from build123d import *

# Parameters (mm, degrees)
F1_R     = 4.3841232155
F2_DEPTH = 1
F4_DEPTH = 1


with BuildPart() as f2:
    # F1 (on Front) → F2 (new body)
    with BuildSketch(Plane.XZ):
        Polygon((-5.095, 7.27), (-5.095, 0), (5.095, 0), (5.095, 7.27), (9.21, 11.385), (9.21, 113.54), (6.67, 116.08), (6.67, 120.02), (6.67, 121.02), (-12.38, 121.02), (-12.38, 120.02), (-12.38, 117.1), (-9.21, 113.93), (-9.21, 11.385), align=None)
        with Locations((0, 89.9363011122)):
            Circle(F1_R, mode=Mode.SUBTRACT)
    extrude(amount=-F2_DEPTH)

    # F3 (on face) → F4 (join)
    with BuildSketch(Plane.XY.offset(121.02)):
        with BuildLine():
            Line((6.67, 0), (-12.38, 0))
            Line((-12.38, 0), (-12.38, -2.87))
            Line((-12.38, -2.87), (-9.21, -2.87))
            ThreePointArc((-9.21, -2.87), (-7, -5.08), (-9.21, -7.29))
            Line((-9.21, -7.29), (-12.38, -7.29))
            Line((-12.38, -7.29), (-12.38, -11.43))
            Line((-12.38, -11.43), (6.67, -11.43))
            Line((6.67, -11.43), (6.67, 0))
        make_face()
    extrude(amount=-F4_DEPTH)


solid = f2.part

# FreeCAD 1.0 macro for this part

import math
import FreeCAD as App
import Part
import Sketcher

V = App.Vector
Q = App.Units.Quantity

doc = App.newDocument("Part")
body = doc.addObject("PartDesign::Body", "Body")

# Sketch on XZ plane
sketch1 = body.newObject("Sketcher::SketchObject", "Sketch")
sketch1.AttachmentSupport = (doc.getObject("XZ_Plane"), [""])
sketch1.MapMode = "FlatFace"
sketch1.addGeometry([
    Part.LineSegment(V(-5.095, 7.27, 0), V(-5.095, 0, 0)),  # 0
    Part.LineSegment(V(-5.095, 0, 0), V(5.095, 0, 0)),  # 1
    Part.LineSegment(V(5.095, 0, 0), V(5.095, 7.27, 0)),  # 2
    Part.LineSegment(V(5.095, 7.27, 0), V(9.21, 11.385, 0)),  # 3
    Part.LineSegment(V(9.21, 11.385, 0), V(9.21, 113.54, 0)),  # 4
    Part.LineSegment(V(9.21, 113.54, 0), V(6.67, 116.08, 0)),  # 5
    Part.LineSegment(V(6.67, 116.08, 0), V(6.67, 121.02, 0)),  # 6
    Part.LineSegment(V(6.67, 121.02, 0), V(-12.38, 121.02, 0)),  # 7
    Part.LineSegment(V(-12.38, 121.02, 0), V(-12.38, 117.1, 0)),  # 8
    Part.LineSegment(V(-12.38, 117.1, 0), V(-9.21, 113.93, 0)),  # 9
    Part.LineSegment(V(-9.21, 113.93, 0), V(-9.21, 11.385, 0)),  # 10
    Part.LineSegment(V(-9.21, 11.385, 0), V(-5.095, 7.27, 0)),  # 11
    Part.Circle(V(0, 89.936301, 0), V(0, 0, 1), 4.384123),  # 12
], False)
sketch1.addConstraint([
    Sketcher.Constraint("Coincident", 0, 2, 1, 1),
    Sketcher.Constraint("Coincident", 1, 2, 2, 1),
    Sketcher.Constraint("Coincident", 2, 2, 3, 1),
    Sketcher.Constraint("Coincident", 3, 2, 4, 1),
    Sketcher.Constraint("Coincident", 4, 2, 5, 1),
    Sketcher.Constraint("Coincident", 5, 2, 6, 1),
    Sketcher.Constraint("Coincident", 6, 2, 7, 1),
    Sketcher.Constraint("Coincident", 7, 2, 8, 1),
    Sketcher.Constraint("Coincident", 8, 2, 9, 1),
    Sketcher.Constraint("Coincident", 9, 2, 10, 1),
    Sketcher.Constraint("Coincident", 10, 2, 11, 1),
    Sketcher.Constraint("Coincident", 11, 2, 0, 1),
    Sketcher.Constraint("Vertical", 0),
    Sketcher.Constraint("Horizontal", 1),
    Sketcher.Constraint("Vertical", 2),
    Sketcher.Constraint("Vertical", 4),
    Sketcher.Constraint("Vertical", 6),
    Sketcher.Constraint("Horizontal", 7),
    Sketcher.Constraint("Vertical", 8),
    Sketcher.Constraint("Vertical", 10),
    Sketcher.Constraint("Symmetric", 0, 2, 1, 2, -1, 1),
    Sketcher.Constraint("Symmetric", 3, 2, 10, 2, -2),
    Sketcher.Constraint("PointOnObject", 12, 3, -2),
    Sketcher.Constraint("Perpendicular", 3, 5),
    Sketcher.Constraint("Parallel", 5, 9),
    Sketcher.Constraint("Parallel", 9, 11),
    Sketcher.Constraint("Horizontal", 2, 2, 11, 2),
    Sketcher.Constraint("DistanceX", 7, 2, 7, 1, Q("0.75 in")),
    Sketcher.Constraint("DistanceX", 5, 2, 4, 2, Q("0.1 in")),
    Sketcher.Constraint("Diameter", 12, Q("8.768246 mm")),
    Sketcher.Constraint("DistanceX", 1, 1, 1, 2, Q("10.19 mm")),
    Sketcher.Constraint("DistanceY", 0, 2, 0, 1, Q("7.27 mm")),
    Sketcher.Constraint("DistanceY", 4, 1, 4, 2, Q("102.155 mm")),
    Sketcher.Constraint("DistanceY", 6, 1, 6, 2, Q("4.94 mm")),
    Sketcher.Constraint("DistanceY", 8, 2, 8, 1, Q("3.92 mm")),
    Sketcher.Constraint("DistanceY", 10, 2, 10, 1, Q("102.545 mm")),
    Sketcher.Constraint("DistanceY", -1, 1, 12, 3, Q("89.936301 mm")),
])
pad1 = body.newObject("PartDesign::Pad", "Pad")
pad1.Profile = sketch1
pad1.Length = 1
pad1.Reversed = True

# Sketch on XY plane
sketch2 = body.newObject("Sketcher::SketchObject", "Sketch001")
sketch2.AttachmentSupport = (doc.getObject("XY_Plane"), [""])
sketch2.MapMode = "FlatFace"
sketch2.AttachmentOffset = App.Placement(V(0, 0, 121.02), App.Rotation())
sketch2.addGeometry([
    Part.LineSegment(V(6.67, 0, 0), V(-12.38, 0, 0)),  # 0
    Part.LineSegment(V(-12.38, 0, 0), V(-12.38, -2.87, 0)),  # 1
    Part.LineSegment(V(-12.38, -2.87, 0), V(-9.21, -2.87, 0)),  # 2
    Part.ArcOfCircle(Part.Circle(V(-9.21, -5.08, 0), V(0, 0, 1), 2.21), math.radians(-90), math.radians(90)),  # 3
    Part.LineSegment(V(-9.21, -7.29, 0), V(-12.38, -7.29, 0)),  # 4
    Part.LineSegment(V(-12.38, -7.29, 0), V(-12.38, -11.43, 0)),  # 5
    Part.LineSegment(V(-12.38, -11.43, 0), V(6.67, -11.43, 0)),  # 6
    Part.LineSegment(V(6.67, -11.43, 0), V(6.67, 0, 0)),  # 7
], False)
sketch2.addConstraint([
    Sketcher.Constraint("Coincident", 0, 2, 1, 1),
    Sketcher.Constraint("Coincident", 1, 2, 2, 1),
    Sketcher.Constraint("Tangent", 2, 2, 3, 2),
    Sketcher.Constraint("Tangent", 3, 1, 4, 1),
    Sketcher.Constraint("Coincident", 4, 2, 5, 1),
    Sketcher.Constraint("Coincident", 5, 2, 6, 1),
    Sketcher.Constraint("Coincident", 6, 2, 7, 1),
    Sketcher.Constraint("Coincident", 7, 2, 0, 1),
    Sketcher.Constraint("Horizontal", 0),
    Sketcher.Constraint("Vertical", 1),
    Sketcher.Constraint("Horizontal", 2),
    Sketcher.Constraint("Horizontal", 4),
    Sketcher.Constraint("Vertical", 5),
    Sketcher.Constraint("Horizontal", 6),
    Sketcher.Constraint("Vertical", 7),
    Sketcher.Constraint("PointOnObject", 0, 2, -1),
    Sketcher.Constraint("Vertical", 1, 2, 4, 2),
    Sketcher.Constraint("DistanceX", 0, 2, 0, 1, Q("0.75 in")),
    Sketcher.Constraint("DistanceY", 7, 1, 7, 2, Q("0.45 in")),
    Sketcher.Constraint("DistanceY", 3, 3, -1, 1, Q("0.2 in")),
    Sketcher.Constraint("Radius", 3, Q("2.21 mm")),
    Sketcher.Constraint("DistanceX", 2, 1, 2, 2, Q("3.17 mm")),
    Sketcher.Constraint("DistanceX", 3, 3, -1, 1, Q("9.21 mm")),
])
pad2 = body.newObject("PartDesign::Pad", "Pad001")
pad2.Profile = sketch2
pad2.Length = 1
pad2.Reversed = True

doc.recompute()
